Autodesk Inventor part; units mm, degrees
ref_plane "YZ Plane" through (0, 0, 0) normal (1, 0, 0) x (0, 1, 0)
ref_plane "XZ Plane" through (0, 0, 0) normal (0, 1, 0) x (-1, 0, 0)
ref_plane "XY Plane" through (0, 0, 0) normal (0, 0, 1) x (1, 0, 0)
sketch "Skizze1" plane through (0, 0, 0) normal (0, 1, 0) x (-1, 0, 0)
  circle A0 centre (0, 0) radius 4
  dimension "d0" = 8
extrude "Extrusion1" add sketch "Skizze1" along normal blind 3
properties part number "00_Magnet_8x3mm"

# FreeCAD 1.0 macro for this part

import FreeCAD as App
import Part
import Sketcher
from FreeCAD import Vector

doc = App.newDocument("Part")
body = doc.addObject("PartDesign::Body", "Body")

# Sketch on XZ plane
sketch1 = body.newObject("Sketcher::SketchObject", "Sketch")
sketch1.AttachmentSupport = (doc.getObject("XZ_Plane"), [""])
sketch1.MapMode = "FlatFace"
sketch1.addGeometry(Part.Circle(Vector(0, 0, 0), Vector(0, 0, 1), 4), False)
sketch1.addConstraint([
    Sketcher.Constraint("Coincident", 0, 3, -1, 1),
    Sketcher.Constraint("Diameter", 0, 8.0),
])
pad1 = body.newObject("PartDesign::Pad", "Pad")
pad1.Profile = sketch1
pad1.Length = 3
pad1.Reversed = True

doc.recompute()
